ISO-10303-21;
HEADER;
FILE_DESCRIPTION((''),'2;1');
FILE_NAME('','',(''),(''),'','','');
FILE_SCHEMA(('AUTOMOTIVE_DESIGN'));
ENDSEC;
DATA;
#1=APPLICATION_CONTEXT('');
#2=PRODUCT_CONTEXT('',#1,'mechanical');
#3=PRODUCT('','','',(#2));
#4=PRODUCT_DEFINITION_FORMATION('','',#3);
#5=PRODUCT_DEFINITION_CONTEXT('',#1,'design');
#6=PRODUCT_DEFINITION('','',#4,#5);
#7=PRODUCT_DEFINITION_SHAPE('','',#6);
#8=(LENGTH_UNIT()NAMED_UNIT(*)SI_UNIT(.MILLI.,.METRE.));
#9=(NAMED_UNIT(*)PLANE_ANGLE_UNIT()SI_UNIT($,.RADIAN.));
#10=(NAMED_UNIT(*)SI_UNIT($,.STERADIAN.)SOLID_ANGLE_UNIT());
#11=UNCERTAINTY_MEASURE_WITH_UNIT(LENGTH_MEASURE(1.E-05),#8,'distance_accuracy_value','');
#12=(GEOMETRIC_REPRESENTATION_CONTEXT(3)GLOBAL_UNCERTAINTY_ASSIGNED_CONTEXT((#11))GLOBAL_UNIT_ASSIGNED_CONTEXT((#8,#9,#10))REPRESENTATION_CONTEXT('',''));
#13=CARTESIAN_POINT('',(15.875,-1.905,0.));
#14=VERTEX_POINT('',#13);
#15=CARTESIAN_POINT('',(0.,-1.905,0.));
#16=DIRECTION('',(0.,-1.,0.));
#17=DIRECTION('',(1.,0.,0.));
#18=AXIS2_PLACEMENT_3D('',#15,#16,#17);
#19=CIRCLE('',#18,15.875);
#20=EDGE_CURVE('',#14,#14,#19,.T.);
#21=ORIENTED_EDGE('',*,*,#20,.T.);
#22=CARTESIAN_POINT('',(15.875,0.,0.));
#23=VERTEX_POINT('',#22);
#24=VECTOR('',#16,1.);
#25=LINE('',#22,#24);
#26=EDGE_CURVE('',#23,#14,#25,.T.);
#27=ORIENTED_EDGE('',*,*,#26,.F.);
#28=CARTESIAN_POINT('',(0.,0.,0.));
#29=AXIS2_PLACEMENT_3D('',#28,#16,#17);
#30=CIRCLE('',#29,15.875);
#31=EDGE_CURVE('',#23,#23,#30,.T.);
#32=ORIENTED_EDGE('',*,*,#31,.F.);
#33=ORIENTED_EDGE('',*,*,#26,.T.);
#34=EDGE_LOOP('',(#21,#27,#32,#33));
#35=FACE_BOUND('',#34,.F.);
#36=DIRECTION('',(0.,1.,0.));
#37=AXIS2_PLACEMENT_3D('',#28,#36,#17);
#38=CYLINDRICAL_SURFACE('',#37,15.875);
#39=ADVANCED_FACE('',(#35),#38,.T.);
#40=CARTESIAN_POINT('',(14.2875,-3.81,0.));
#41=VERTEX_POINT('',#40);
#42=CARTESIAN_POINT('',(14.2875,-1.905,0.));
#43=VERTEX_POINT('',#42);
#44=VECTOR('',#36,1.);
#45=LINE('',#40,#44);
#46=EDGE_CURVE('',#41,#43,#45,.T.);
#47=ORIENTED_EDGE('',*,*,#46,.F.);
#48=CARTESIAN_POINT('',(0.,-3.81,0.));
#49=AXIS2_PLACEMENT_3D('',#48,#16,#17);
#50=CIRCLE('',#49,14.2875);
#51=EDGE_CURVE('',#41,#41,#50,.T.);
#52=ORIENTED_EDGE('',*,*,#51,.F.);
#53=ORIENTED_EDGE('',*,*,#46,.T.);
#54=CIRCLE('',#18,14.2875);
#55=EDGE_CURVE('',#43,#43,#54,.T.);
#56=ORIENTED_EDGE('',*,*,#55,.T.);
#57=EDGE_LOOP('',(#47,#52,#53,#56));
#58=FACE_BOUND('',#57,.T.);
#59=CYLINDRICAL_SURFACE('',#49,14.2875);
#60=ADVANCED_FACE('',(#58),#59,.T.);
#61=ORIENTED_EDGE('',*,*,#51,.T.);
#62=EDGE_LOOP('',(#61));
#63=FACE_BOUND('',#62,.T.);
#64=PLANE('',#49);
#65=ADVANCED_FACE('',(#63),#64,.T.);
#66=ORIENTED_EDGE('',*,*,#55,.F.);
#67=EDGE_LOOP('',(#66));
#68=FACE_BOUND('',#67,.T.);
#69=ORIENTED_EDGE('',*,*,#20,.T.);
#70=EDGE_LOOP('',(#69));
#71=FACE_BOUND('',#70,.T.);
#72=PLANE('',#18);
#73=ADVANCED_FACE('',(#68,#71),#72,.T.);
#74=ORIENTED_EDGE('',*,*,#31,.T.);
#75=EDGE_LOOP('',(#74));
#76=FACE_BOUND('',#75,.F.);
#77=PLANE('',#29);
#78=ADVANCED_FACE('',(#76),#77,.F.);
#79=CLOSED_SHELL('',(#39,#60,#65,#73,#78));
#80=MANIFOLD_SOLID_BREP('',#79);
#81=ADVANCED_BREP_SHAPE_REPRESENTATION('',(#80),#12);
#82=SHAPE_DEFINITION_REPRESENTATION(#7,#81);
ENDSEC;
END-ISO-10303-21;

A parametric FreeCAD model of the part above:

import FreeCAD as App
import Part
import Sketcher
Q = App.Units.Quantity

doc = App.newDocument("Part")
body = doc.addObject("PartDesign::Body", "Body")

# Sketch on XZ plane
sketch1 = body.newObject("Sketcher::SketchObject", "Sketch")
sketch1.AttachmentSupport = (doc.getObject("XZ_Plane"), [""])
sketch1.MapMode = "FlatFace"
sketch1.addGeometry(Part.Circle(App.Vector(0, 0, 0), App.Vector(0, 0, 1), 16), False)
sketch1.addConstraint([
    Sketcher.Constraint("Coincident", 0, 3, -1, 1),
    Sketcher.Constraint("Diameter", 0, Q("1.25 in")),
])
pad1 = body.newObject("PartDesign::Pad", "Pad")
pad1.Profile = sketch1
pad1.Length = Q("0.15 in")

# Sketch on XZ plane
sketch2 = body.newObject("Sketcher::SketchObject", "Sketch001")
sketch2.AttachmentSupport = (doc.getObject("XZ_Plane"), [""])
sketch2.MapMode = "FlatFace"
sketch2.AttachmentOffset = App.Placement(App.Vector(0, 0, 0.15 * 25.4), App.Rotation())
sketch2.addGeometry([
    Part.Circle(App.Vector(0, 0, 0), App.Vector(0, 0, 1), 16),
    Part.Circle(App.Vector(0, 0, 0), App.Vector(0, 0, 1), 14),
], False)
sketch2.addConstraint([
    Sketcher.Constraint("Coincident", 0, 3, -1, 1),
    Sketcher.Constraint("Coincident", 1, 3, -1, 1),
    Sketcher.Constraint("Diameter", 0, Q("1.25 in")),
    Sketcher.Constraint("Diameter", 1, Q("1.125 in")),
])
pocket1 = body.newObject("PartDesign::Pocket", "Pocket")
pocket1.Profile = sketch2
pocket1.Length = Q("0.075 in")

doc.recompute()
